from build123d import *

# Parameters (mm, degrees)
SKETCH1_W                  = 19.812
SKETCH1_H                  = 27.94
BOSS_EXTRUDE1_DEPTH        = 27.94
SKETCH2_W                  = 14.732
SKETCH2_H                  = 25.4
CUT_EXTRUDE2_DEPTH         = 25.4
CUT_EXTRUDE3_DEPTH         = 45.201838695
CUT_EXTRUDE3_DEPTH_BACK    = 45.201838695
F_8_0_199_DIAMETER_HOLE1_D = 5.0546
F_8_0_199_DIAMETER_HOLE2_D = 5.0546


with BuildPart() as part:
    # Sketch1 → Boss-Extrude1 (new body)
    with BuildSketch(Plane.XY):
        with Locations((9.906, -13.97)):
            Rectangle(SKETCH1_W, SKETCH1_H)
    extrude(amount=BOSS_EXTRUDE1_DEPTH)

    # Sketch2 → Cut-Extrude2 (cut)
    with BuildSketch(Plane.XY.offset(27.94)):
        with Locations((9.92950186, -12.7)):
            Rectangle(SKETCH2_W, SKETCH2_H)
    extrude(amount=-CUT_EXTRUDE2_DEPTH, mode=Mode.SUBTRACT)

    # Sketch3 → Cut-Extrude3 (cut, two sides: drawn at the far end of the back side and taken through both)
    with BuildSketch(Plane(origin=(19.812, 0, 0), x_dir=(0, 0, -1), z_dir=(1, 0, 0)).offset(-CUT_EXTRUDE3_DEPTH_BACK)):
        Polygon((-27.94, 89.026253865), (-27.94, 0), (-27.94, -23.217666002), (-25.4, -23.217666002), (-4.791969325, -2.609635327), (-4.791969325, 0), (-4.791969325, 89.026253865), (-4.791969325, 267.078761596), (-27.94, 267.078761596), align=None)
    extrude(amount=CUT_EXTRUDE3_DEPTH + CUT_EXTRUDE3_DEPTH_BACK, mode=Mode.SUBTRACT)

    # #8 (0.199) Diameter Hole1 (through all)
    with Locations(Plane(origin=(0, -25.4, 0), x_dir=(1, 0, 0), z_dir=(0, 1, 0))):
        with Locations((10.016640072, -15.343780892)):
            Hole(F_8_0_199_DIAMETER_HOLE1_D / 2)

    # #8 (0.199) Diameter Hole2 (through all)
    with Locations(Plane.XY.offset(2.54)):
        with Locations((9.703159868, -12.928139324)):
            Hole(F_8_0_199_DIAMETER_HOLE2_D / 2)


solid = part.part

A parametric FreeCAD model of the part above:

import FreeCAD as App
import Part
import Sketcher
from FreeCAD import Vector
Q = App.Units.Quantity


def add_polygon(sketch, points):
    """Adds a closed chain of lines whose ends are joined by coincident constraints."""
    first, n = sketch.GeometryCount, len(points)
    for a, b in zip(points, points[1:] + points[:1]):
        sketch.addGeometry(Part.LineSegment(App.Vector(*a, 0), App.Vector(*b, 0)), False)
    for i in range(n):
        sketch.addConstraint(Sketcher.Constraint("Coincident", first + i, 2, first + (i + 1) % n, 1))

doc = App.newDocument("Part")
params = doc.addObject("Spreadsheet::Sheet", "Params")
for row, (alias, value) in enumerate([
    ("sketch1_height", "1.1 in"),
    ("sketch1_width", "0.78 in"),
    ("pad1_length", "1.1 in"),
    ("sketch2_height", "1 in"),
    ("sketch2_width", "0.58 in"),
    ("pocket1_length", "1 in"),
    ("sketch3_height", "0.1 in"),
    ("sketch4_diameter", "0.199 in"),
    ("hole_diameter", "0.199 in"),
    ("sketch5_diameter", "0.199 in"),
    ("hole2_diameter", "0.199 in"),
], start=1):
    params.set(f"A{row}", alias)
    params.set(f"B{row}", "=" + value)
    params.setAlias(f"B{row}", alias)

body = doc.addObject("PartDesign::Body", "Body")

# Sketch on XY plane
sketch1 = body.newObject("Sketcher::SketchObject", "Sketch")
sketch1.AttachmentSupport = (doc.getObject("XY_Plane"), [""])
sketch1.MapMode = "FlatFace"
add_polygon(sketch1, [(0, 0), (0, -28), (20, -28), (20, 0)])  # lines 0-3
sketch1.addConstraint(Sketcher.Constraint("Vertical", 0))
sketch1.addConstraint(Sketcher.Constraint("Horizontal", 1))
sketch1.addConstraint(Sketcher.Constraint("Vertical", 2))
sketch1.addConstraint(Sketcher.Constraint("Horizontal", 3))
sketch1.addConstraint(Sketcher.Constraint("Coincident", 3, 2, -1, 1))
sketch1.addConstraint(Sketcher.Constraint("DistanceY", 0, 2, 0, 1, Q("1.1 in")))
sketch1.addConstraint(Sketcher.Constraint("DistanceX", 1, 1, 1, 2, Q("0.78 in")))
sketch1.setExpression("Constraints[9]", "Params.sketch1_height")
sketch1.setExpression("Constraints[10]", "Params.sketch1_width")
pad1 = body.newObject("PartDesign::Pad", "Pad")
pad1.Profile = sketch1
pad1.setExpression("Length", "Params.pad1_length")

# Sketch on XY plane
sketch2 = body.newObject("Sketcher::SketchObject", "Sketch001")
sketch2.AttachmentSupport = (doc.getObject("XY_Plane"), [""])
sketch2.MapMode = "FlatFace"
sketch2.AttachmentOffset = App.Placement(Vector(0, 0, 1.1 * 25.4), App.Rotation())
add_polygon(sketch2, [(3, 0), (3, -25), (17, -25), (17, 0)])  # lines 0-3
sketch2.addConstraint(Sketcher.Constraint("Vertical", 0))
sketch2.addConstraint(Sketcher.Constraint("Horizontal", 1))
sketch2.addConstraint(Sketcher.Constraint("Vertical", 2))
sketch2.addConstraint(Sketcher.Constraint("Horizontal", 3))
sketch2.addConstraint(Sketcher.Constraint("PointOnObject", 2, 2, -1))
sketch2.addConstraint(Sketcher.Constraint("DistanceY", 0, 2, 0, 1, Q("1 in")))
sketch2.addConstraint(Sketcher.Constraint("DistanceX", 1, 1, 1, 2, Q("0.58 in")))
sketch2.addConstraint(Sketcher.Constraint("DistanceX", -1, 1, 0, 2, Q("2.563502 mm")))
sketch2.setExpression("Constraints[9]", "Params.sketch2_height")
sketch2.setExpression("Constraints[10]", "Params.sketch2_width")
pocket1 = body.newObject("PartDesign::Pocket", "Pocket")
pocket1.Profile = sketch2
pocket1.setExpression("Length", "Params.pocket1_length")

# Sketch on YZ plane
sketch3 = body.newObject("Sketcher::SketchObject", "Sketch002")
sketch3.AttachmentSupport = (doc.getObject("YZ_Plane"), [""])
sketch3.MapMode = "FlatFace"
sketch3.AttachmentOffset = App.Placement(Vector(0, 0, 0.78 * 25.4), App.Rotation())
add_polygon(sketch3, [(-23.2, 27.9), (-23.2, 25.4), (-2.6, 4.8), (267.1, 4.8), (267.1, 27.9)])  # lines 0-4
sketch3.addConstraint(Sketcher.Constraint("Vertical", 0))
sketch3.addConstraint(Sketcher.Constraint("Horizontal", 2))
sketch3.addConstraint(Sketcher.Constraint("Vertical", 3))
sketch3.addConstraint(Sketcher.Constraint("Horizontal", 4))
sketch3.addConstraint(Sketcher.Constraint("DistanceY", 0, 2, 0, 1, Q("0.1 in")))
sketch3.addConstraint(Sketcher.Constraint("DistanceY", -1, 1, 0, 2, Q("1 in")))
sketch3.addConstraint(Sketcher.Constraint("Angle", 1, Q("-45 deg")))
sketch3.addConstraint(Sketcher.Constraint("DistanceY", 3, 1, 3, 2, Q("23.148031 mm")))
sketch3.addConstraint(Sketcher.Constraint("DistanceX", 2, 1, 2, 2, Q("269.688397 mm")))
sketch3.addConstraint(Sketcher.Constraint("DistanceX", -1, 1, 2, 2, Q("267.078762 mm")))
sketch3.setExpression("Constraints[9]", "Params.sketch3_height")
pocket2 = body.newObject("PartDesign::Pocket", "Pocket001")
pocket2.Profile = sketch3
pocket2.Type = "ThroughAll"
pocket2.Midplane = True

# Sketch on XZ plane
sketch4 = body.newObject("Sketcher::SketchObject", "Sketch003")
sketch4.AttachmentSupport = (doc.getObject("XZ_Plane"), [""])
sketch4.MapMode = "FlatFace"
sketch4.AttachmentOffset = App.Placement(Vector(0, 0, 1 * 25.4), App.Rotation())
sketch4.addGeometry(Part.Circle(Vector(10, 15.3, 0), Vector(0, 0, 1), 2.5), False)
sketch4.addConstraint(Sketcher.Constraint("Diameter", 0, Q("0.199 in")))
sketch4.addConstraint(Sketcher.Constraint("DistanceX", -1, 1, 0, 3, Q("10.01664 mm")))
sketch4.addConstraint(Sketcher.Constraint("DistanceY", -1, 1, 0, 3, Q("15.343781 mm")))
sketch4.setExpression("Constraints[0]", "Params.sketch4_diameter")
doc.recompute()
hole = body.newObject("PartDesign::Hole", "Hole")
hole.Profile = sketch4
hole.ThreadType = "None"
hole.setExpression("Diameter", "Params.hole_diameter")
hole.DepthType = "ThroughAll"
hole.Reversed = True

# Sketch on XY plane
sketch5 = body.newObject("Sketcher::SketchObject", "Sketch004")
sketch5.AttachmentSupport = (doc.getObject("XY_Plane"), [""])
sketch5.MapMode = "FlatFace"
sketch5.AttachmentOffset = App.Placement(Vector(0, 0, 0.1 * 25.4), App.Rotation())
sketch5.addGeometry(Part.Circle(Vector(9.7, -12.9, 0), Vector(0, 0, 1), 2.5), False)
sketch5.addConstraint(Sketcher.Constraint("Diameter", 0, Q("0.199 in")))
sketch5.addConstraint(Sketcher.Constraint("DistanceX", -1, 1, 0, 3, Q("9.70316 mm")))
sketch5.addConstraint(Sketcher.Constraint("DistanceY", 0, 3, -1, 1, Q("12.928139 mm")))
sketch5.setExpression("Constraints[0]", "Params.sketch5_diameter")
doc.recompute()
hole2 = body.newObject("PartDesign::Hole", "Hole001")
hole2.Profile = sketch5
hole2.ThreadType = "None"
hole2.setExpression("Diameter", "Params.hole2_diameter")
hole2.DepthType = "ThroughAll"

doc.recompute()
